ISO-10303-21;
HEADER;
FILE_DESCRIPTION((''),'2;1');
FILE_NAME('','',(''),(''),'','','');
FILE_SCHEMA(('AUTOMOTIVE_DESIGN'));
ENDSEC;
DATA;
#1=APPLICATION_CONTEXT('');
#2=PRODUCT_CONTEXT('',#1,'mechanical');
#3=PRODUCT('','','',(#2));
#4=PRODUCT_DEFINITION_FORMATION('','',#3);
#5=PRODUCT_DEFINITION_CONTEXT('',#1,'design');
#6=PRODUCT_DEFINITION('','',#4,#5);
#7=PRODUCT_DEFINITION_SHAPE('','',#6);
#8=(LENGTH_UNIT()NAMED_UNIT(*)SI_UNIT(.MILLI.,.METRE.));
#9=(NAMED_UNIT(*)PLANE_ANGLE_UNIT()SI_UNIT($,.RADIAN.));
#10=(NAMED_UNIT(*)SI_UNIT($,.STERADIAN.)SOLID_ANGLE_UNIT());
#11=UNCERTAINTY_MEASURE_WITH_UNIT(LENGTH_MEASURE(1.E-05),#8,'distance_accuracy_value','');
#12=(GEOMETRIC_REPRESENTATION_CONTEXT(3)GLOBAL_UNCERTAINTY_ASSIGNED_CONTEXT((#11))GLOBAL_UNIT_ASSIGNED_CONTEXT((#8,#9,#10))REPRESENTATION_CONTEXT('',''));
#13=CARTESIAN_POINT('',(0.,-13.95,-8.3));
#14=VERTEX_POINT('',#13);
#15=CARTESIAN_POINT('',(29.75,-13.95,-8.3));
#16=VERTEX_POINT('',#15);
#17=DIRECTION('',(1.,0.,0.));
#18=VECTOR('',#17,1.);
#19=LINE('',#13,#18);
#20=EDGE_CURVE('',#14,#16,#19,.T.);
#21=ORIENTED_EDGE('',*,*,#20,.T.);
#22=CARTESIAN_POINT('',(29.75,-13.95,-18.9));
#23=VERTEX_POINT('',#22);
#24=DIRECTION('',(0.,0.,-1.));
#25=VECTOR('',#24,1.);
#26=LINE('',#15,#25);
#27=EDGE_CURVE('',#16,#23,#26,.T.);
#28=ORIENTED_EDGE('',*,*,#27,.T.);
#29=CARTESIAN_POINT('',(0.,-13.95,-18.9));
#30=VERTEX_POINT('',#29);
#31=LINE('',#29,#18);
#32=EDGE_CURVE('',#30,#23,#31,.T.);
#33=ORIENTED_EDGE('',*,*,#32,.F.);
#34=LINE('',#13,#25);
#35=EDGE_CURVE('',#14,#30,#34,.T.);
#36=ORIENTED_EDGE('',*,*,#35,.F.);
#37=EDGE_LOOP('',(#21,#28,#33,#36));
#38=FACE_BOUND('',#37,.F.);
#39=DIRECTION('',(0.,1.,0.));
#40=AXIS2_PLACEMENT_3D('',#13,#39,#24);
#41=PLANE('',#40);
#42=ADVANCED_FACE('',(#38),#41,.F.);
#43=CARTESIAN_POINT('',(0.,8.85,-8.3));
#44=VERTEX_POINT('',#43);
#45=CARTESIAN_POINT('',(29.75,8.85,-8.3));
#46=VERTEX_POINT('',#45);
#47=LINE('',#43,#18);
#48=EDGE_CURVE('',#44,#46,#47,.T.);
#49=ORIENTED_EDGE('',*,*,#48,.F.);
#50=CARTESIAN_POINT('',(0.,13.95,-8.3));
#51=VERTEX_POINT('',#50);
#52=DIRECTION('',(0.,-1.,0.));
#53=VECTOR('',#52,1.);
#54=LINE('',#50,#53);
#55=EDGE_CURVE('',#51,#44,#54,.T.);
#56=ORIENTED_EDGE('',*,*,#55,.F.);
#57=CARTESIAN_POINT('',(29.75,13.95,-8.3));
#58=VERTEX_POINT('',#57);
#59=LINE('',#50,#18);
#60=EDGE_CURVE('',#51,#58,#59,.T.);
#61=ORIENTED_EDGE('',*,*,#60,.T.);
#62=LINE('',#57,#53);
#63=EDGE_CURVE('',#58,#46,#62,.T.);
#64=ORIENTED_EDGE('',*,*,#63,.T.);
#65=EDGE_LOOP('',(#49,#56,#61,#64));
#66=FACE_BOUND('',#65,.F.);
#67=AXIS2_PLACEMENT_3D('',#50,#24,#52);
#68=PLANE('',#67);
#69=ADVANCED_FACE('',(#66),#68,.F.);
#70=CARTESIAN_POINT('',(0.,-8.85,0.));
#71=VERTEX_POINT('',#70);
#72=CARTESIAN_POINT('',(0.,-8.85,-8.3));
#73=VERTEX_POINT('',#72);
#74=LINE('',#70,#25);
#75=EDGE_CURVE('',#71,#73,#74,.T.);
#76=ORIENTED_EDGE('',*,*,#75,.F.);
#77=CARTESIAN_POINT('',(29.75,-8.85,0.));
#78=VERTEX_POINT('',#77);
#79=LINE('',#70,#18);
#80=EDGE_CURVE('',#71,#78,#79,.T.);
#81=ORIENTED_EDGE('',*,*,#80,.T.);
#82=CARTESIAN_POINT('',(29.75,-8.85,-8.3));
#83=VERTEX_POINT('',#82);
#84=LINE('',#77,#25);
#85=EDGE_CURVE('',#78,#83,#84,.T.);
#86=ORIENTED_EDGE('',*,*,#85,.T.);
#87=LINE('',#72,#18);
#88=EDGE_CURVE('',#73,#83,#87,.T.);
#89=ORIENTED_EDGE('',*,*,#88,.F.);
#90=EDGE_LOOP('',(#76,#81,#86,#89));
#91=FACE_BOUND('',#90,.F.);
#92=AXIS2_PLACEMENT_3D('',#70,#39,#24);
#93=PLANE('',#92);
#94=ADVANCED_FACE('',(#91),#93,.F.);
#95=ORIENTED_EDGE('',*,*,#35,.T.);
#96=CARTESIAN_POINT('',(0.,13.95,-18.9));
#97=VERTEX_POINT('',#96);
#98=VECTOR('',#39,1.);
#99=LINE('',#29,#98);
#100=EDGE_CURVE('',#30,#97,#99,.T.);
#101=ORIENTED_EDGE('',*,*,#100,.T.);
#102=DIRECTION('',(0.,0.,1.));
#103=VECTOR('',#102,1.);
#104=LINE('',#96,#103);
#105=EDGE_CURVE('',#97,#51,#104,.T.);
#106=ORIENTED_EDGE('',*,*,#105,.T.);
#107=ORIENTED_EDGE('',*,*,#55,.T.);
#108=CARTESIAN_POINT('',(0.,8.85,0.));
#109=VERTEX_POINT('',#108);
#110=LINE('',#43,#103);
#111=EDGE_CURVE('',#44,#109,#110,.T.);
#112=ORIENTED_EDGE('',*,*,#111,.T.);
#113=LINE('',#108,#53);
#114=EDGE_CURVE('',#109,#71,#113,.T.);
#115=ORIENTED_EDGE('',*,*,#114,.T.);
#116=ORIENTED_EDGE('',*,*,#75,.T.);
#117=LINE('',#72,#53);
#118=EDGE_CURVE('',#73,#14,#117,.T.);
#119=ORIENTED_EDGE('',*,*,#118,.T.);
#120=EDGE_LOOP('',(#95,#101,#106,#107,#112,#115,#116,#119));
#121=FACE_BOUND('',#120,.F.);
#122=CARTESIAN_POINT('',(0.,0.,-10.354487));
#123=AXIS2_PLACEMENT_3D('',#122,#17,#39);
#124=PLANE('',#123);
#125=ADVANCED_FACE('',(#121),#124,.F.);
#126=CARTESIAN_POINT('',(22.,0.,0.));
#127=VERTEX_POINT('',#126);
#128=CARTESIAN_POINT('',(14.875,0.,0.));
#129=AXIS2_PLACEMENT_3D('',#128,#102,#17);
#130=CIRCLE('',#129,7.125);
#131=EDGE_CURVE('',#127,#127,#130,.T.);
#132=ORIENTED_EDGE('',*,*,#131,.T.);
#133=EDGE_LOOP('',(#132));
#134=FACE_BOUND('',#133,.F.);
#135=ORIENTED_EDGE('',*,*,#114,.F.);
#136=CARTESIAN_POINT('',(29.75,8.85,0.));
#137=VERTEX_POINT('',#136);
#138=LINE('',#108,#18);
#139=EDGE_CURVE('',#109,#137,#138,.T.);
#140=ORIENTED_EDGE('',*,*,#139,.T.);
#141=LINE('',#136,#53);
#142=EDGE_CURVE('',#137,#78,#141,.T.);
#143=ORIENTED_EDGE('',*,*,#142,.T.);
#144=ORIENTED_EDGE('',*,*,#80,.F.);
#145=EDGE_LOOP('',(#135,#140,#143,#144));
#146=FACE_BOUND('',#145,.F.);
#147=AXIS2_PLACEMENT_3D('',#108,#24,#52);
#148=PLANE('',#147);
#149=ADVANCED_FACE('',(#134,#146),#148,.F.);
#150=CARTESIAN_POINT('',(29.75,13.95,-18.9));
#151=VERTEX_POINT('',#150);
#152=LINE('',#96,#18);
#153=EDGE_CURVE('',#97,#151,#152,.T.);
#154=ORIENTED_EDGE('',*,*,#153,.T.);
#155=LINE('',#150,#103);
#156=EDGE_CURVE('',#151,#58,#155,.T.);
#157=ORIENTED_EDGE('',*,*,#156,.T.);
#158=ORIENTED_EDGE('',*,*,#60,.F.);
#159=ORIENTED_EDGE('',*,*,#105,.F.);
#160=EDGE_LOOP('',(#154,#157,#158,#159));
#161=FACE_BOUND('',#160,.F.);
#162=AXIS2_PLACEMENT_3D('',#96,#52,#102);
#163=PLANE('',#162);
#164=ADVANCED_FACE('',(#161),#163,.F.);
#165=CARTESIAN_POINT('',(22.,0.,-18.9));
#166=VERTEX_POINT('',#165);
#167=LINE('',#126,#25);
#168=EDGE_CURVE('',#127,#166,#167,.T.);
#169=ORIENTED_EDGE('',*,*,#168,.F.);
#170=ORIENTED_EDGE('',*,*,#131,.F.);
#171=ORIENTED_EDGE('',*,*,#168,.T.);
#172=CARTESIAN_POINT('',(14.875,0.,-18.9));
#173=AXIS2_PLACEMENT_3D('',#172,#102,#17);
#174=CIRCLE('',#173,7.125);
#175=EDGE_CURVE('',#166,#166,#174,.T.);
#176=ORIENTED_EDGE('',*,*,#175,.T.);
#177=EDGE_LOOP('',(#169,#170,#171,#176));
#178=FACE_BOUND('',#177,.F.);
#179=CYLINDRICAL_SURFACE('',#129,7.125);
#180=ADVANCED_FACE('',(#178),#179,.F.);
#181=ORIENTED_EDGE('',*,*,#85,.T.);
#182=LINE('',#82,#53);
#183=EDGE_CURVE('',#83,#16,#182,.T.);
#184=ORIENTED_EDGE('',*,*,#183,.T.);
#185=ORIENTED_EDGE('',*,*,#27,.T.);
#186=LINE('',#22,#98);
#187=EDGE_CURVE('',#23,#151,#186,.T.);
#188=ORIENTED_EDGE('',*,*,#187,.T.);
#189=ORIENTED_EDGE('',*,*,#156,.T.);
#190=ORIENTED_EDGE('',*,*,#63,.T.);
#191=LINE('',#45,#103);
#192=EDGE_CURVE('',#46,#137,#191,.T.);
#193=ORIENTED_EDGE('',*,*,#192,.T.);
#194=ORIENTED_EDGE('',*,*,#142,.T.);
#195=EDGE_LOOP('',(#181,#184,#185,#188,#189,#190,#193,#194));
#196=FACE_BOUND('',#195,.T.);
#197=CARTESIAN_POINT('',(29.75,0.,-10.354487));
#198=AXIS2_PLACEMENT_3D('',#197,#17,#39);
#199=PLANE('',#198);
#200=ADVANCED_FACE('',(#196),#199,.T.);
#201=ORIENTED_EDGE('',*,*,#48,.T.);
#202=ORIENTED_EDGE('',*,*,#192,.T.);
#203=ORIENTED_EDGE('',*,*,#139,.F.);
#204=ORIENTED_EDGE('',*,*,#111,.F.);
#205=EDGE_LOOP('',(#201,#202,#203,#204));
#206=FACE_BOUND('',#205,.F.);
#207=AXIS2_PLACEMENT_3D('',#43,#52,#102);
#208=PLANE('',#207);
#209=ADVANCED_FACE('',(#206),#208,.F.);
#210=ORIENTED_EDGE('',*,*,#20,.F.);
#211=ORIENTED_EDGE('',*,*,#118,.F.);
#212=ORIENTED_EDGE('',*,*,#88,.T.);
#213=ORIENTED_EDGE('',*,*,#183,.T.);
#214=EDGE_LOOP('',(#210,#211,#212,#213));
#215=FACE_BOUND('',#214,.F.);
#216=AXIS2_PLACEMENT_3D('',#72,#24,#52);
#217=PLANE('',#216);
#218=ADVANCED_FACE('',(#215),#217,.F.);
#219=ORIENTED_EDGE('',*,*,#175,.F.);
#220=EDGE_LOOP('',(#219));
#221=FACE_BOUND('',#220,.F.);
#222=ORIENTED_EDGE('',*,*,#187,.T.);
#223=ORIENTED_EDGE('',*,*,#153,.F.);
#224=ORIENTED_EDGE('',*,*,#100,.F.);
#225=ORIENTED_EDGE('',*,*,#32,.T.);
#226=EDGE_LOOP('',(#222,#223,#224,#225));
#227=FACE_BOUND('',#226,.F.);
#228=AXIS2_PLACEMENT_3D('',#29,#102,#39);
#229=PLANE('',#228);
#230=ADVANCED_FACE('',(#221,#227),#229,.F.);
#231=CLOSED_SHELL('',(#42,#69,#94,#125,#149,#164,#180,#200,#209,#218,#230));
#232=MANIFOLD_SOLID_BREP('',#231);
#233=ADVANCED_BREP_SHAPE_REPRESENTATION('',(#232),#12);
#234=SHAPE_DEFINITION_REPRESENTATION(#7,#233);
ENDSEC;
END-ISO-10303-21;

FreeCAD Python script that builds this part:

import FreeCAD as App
import Part
import Sketcher
from FreeCAD import Vector
Q = App.Units.Quantity

doc = App.newDocument("Part")
body = doc.addObject("PartDesign::Body", "Body")

sketch1 = body.newObject("Sketcher::SketchObject", "Sketch")
sketch1.AttachmentSupport = (doc.getObject("YZ_Plane"), [""])
sketch1.MapMode = "FlatFace"
sketch1.addGeometry(Part.LineSegment(Vector(8.85, 0, 0), Vector(-8.85, 0, 0)), False)
sketch1.addGeometry(Part.LineSegment(Vector(-8.85, 0, 0), Vector(-8.85, -8.3, 0)), False)
sketch1.addGeometry(Part.LineSegment(Vector(-8.85, -8.3, 0), Vector(-13.95, -8.3, 0)), False)
sketch1.addGeometry(Part.LineSegment(Vector(-13.95, -8.3, 0), Vector(-13.95, -18.9, 0)), False)
sketch1.addGeometry(Part.LineSegment(Vector(-13.95, -18.9, 0), Vector(13.95, -18.9, 0)), False)
sketch1.addGeometry(Part.LineSegment(Vector(13.95, -18.9, 0), Vector(13.95, -8.3, 0)), False)
sketch1.addGeometry(Part.LineSegment(Vector(13.95, -8.3, 0), Vector(8.85, -8.3, 0)), False)
sketch1.addGeometry(Part.LineSegment(Vector(8.85, -8.3, 0), Vector(8.85, 0, 0)), False)
sketch1.addConstraint(Sketcher.Constraint("Coincident", 0, 2, 1, 1))
sketch1.addConstraint(Sketcher.Constraint("Coincident", 1, 2, 2, 1))
sketch1.addConstraint(Sketcher.Constraint("Coincident", 2, 2, 3, 1))
sketch1.addConstraint(Sketcher.Constraint("Coincident", 3, 2, 4, 1))
sketch1.addConstraint(Sketcher.Constraint("Coincident", 4, 2, 5, 1))
sketch1.addConstraint(Sketcher.Constraint("Coincident", 5, 2, 6, 1))
sketch1.addConstraint(Sketcher.Constraint("Coincident", 6, 2, 7, 1))
sketch1.addConstraint(Sketcher.Constraint("Coincident", 7, 2, 0, 1))
sketch1.addConstraint(Sketcher.Constraint("Horizontal", 0))
sketch1.addConstraint(Sketcher.Constraint("Vertical", 1))
sketch1.addConstraint(Sketcher.Constraint("Horizontal", 2))
sketch1.addConstraint(Sketcher.Constraint("Vertical", 3))
sketch1.addConstraint(Sketcher.Constraint("Horizontal", 4))
sketch1.addConstraint(Sketcher.Constraint("Vertical", 5))
sketch1.addConstraint(Sketcher.Constraint("Horizontal", 6))
sketch1.addConstraint(Sketcher.Constraint("Vertical", 7))
sketch1.addConstraint(Sketcher.Constraint("Symmetric", 0, 2, 7, 2, -1, 1))
sketch1.addConstraint(Sketcher.Constraint("Symmetric", 2, 2, 5, 2, -2))
sketch1.addConstraint(Sketcher.Constraint("DistanceX", 0, 2, 0, 1, Q("17.7 mm")))
sketch1.addConstraint(Sketcher.Constraint("DistanceX", 2, 2, 2, 1, Q("5.1 mm")))
sketch1.addConstraint(Sketcher.Constraint("DistanceY", 1, 2, 1, 1, Q("8.3 mm")))
sketch1.addConstraint(Sketcher.Constraint("DistanceY", 3, 2, 3, 1, Q("10.6 mm")))
pad1 = body.newObject("PartDesign::Pad", "Pad")
pad1.Profile = sketch1
pad1.Length = 29.75

sketch2 = body.newObject("Sketcher::SketchObject", "Sketch001")
sketch2.AttachmentSupport = (doc.getObject("XY_Plane"), [""])
sketch2.MapMode = "FlatFace"
sketch2.addGeometry(Part.Circle(Vector(14.875, 0, 0), Vector(0, 0, 1), 7.125), False)
sketch2.addConstraint(Sketcher.Constraint("PointOnObject", 0, 3, -1))
sketch2.addConstraint(Sketcher.Constraint("Diameter", 0, Q("14.25 mm")))
sketch2.addConstraint(Sketcher.Constraint("DistanceX", -1, 1, 0, 3, Q("14.875 mm")))
pocket1 = body.newObject("PartDesign::Pocket", "Pocket")
pocket1.Profile = sketch2
pocket1.Type = "ThroughAll"

doc.recompute()
